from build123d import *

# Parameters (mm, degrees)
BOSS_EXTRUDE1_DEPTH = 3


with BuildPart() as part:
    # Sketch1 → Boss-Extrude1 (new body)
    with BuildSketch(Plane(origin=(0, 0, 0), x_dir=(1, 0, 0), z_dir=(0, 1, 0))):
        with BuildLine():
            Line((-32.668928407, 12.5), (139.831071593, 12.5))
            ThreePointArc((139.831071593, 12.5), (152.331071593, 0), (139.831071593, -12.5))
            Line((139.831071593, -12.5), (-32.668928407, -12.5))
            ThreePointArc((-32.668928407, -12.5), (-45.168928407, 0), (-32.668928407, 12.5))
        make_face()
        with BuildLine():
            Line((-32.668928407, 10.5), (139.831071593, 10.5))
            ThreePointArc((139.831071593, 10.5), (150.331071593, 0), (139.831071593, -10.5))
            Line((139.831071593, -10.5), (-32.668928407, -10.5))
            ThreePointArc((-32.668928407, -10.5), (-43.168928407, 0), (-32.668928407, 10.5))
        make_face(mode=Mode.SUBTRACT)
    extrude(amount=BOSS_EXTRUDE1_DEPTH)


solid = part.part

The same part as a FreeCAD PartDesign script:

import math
import FreeCAD as App
import Part
import Sketcher

doc = App.newDocument("Part")
body = doc.addObject("PartDesign::Body", "Body")

sketch1 = body.newObject("Sketcher::SketchObject", "Sketch")
sketch1.AttachmentSupport = (doc.getObject("XZ_Plane"), [""])
sketch1.MapMode = "FlatFace"
sketch1.addGeometry([
    Part.LineSegment(App.Vector(139.831072, -12.5, 0), App.Vector(-32.668928, -12.5, 0)),
    Part.ArcOfCircle(Part.Circle(App.Vector(-32.668928, 0, 0), App.Vector(0, 0, 1), 12.5), math.radians(90), math.radians(270)),
    Part.LineSegment(App.Vector(-32.668928, 12.5, 0), App.Vector(139.831072, 12.5, 0)),
    Part.ArcOfCircle(Part.Circle(App.Vector(139.831072, 0, 0), App.Vector(0, 0, 1), 12.5), math.radians(-90), math.radians(90)),
    Part.LineSegment(App.Vector(-32.668928, -10.5, 0), App.Vector(139.831072, -10.5, 0)),
    Part.ArcOfCircle(Part.Circle(App.Vector(139.831072, 0, 0), App.Vector(0, 0, 1), 10.5), math.radians(-90), math.radians(90)),
    Part.LineSegment(App.Vector(139.831072, 10.5, 0), App.Vector(-32.668928, 10.5, 0)),
    Part.ArcOfCircle(Part.Circle(App.Vector(-32.668928, 0, 0), App.Vector(0, 0, 1), 10.5), math.radians(90), math.radians(270)),
], False)
sketch1.addConstraint([
    Sketcher.Constraint("Tangent", 0, 2, 1, 2),
    Sketcher.Constraint("Tangent", 1, 1, 2, 1),
    Sketcher.Constraint("Tangent", 2, 2, 3, 2),
    Sketcher.Constraint("Tangent", 3, 1, 0, 1),
    Sketcher.Constraint("Tangent", 4, 2, 5, 1),
    Sketcher.Constraint("Tangent", 5, 2, 6, 1),
    Sketcher.Constraint("Tangent", 6, 2, 7, 1),
    Sketcher.Constraint("Tangent", 7, 2, 4, 1),
    Sketcher.Constraint("Horizontal", 0),
    Sketcher.Constraint("Horizontal", 2),
    Sketcher.Constraint("Horizontal", 4),
    Sketcher.Constraint("Horizontal", 6),
    Sketcher.Constraint("Coincident", 5, 3, 3, 3),
    Sketcher.Constraint("PointOnObject", 1, 3, -1),
    Sketcher.Constraint("Vertical", 7, 3, 0, 2),
    Sketcher.Constraint("Radius", 1, 12.5),
    Sketcher.Constraint("Radius", 5, 10.5),
    Sketcher.Constraint("DistanceX", 0, 2, 0, 1, 172.5),
    Sketcher.Constraint("DistanceX", 1, 3, -1, 1, 32.668928),
])
pad1 = body.newObject("PartDesign::Pad", "Pad")
pad1.Profile = sketch1
pad1.Length = 3
pad1.Reversed = True

doc.recompute()
